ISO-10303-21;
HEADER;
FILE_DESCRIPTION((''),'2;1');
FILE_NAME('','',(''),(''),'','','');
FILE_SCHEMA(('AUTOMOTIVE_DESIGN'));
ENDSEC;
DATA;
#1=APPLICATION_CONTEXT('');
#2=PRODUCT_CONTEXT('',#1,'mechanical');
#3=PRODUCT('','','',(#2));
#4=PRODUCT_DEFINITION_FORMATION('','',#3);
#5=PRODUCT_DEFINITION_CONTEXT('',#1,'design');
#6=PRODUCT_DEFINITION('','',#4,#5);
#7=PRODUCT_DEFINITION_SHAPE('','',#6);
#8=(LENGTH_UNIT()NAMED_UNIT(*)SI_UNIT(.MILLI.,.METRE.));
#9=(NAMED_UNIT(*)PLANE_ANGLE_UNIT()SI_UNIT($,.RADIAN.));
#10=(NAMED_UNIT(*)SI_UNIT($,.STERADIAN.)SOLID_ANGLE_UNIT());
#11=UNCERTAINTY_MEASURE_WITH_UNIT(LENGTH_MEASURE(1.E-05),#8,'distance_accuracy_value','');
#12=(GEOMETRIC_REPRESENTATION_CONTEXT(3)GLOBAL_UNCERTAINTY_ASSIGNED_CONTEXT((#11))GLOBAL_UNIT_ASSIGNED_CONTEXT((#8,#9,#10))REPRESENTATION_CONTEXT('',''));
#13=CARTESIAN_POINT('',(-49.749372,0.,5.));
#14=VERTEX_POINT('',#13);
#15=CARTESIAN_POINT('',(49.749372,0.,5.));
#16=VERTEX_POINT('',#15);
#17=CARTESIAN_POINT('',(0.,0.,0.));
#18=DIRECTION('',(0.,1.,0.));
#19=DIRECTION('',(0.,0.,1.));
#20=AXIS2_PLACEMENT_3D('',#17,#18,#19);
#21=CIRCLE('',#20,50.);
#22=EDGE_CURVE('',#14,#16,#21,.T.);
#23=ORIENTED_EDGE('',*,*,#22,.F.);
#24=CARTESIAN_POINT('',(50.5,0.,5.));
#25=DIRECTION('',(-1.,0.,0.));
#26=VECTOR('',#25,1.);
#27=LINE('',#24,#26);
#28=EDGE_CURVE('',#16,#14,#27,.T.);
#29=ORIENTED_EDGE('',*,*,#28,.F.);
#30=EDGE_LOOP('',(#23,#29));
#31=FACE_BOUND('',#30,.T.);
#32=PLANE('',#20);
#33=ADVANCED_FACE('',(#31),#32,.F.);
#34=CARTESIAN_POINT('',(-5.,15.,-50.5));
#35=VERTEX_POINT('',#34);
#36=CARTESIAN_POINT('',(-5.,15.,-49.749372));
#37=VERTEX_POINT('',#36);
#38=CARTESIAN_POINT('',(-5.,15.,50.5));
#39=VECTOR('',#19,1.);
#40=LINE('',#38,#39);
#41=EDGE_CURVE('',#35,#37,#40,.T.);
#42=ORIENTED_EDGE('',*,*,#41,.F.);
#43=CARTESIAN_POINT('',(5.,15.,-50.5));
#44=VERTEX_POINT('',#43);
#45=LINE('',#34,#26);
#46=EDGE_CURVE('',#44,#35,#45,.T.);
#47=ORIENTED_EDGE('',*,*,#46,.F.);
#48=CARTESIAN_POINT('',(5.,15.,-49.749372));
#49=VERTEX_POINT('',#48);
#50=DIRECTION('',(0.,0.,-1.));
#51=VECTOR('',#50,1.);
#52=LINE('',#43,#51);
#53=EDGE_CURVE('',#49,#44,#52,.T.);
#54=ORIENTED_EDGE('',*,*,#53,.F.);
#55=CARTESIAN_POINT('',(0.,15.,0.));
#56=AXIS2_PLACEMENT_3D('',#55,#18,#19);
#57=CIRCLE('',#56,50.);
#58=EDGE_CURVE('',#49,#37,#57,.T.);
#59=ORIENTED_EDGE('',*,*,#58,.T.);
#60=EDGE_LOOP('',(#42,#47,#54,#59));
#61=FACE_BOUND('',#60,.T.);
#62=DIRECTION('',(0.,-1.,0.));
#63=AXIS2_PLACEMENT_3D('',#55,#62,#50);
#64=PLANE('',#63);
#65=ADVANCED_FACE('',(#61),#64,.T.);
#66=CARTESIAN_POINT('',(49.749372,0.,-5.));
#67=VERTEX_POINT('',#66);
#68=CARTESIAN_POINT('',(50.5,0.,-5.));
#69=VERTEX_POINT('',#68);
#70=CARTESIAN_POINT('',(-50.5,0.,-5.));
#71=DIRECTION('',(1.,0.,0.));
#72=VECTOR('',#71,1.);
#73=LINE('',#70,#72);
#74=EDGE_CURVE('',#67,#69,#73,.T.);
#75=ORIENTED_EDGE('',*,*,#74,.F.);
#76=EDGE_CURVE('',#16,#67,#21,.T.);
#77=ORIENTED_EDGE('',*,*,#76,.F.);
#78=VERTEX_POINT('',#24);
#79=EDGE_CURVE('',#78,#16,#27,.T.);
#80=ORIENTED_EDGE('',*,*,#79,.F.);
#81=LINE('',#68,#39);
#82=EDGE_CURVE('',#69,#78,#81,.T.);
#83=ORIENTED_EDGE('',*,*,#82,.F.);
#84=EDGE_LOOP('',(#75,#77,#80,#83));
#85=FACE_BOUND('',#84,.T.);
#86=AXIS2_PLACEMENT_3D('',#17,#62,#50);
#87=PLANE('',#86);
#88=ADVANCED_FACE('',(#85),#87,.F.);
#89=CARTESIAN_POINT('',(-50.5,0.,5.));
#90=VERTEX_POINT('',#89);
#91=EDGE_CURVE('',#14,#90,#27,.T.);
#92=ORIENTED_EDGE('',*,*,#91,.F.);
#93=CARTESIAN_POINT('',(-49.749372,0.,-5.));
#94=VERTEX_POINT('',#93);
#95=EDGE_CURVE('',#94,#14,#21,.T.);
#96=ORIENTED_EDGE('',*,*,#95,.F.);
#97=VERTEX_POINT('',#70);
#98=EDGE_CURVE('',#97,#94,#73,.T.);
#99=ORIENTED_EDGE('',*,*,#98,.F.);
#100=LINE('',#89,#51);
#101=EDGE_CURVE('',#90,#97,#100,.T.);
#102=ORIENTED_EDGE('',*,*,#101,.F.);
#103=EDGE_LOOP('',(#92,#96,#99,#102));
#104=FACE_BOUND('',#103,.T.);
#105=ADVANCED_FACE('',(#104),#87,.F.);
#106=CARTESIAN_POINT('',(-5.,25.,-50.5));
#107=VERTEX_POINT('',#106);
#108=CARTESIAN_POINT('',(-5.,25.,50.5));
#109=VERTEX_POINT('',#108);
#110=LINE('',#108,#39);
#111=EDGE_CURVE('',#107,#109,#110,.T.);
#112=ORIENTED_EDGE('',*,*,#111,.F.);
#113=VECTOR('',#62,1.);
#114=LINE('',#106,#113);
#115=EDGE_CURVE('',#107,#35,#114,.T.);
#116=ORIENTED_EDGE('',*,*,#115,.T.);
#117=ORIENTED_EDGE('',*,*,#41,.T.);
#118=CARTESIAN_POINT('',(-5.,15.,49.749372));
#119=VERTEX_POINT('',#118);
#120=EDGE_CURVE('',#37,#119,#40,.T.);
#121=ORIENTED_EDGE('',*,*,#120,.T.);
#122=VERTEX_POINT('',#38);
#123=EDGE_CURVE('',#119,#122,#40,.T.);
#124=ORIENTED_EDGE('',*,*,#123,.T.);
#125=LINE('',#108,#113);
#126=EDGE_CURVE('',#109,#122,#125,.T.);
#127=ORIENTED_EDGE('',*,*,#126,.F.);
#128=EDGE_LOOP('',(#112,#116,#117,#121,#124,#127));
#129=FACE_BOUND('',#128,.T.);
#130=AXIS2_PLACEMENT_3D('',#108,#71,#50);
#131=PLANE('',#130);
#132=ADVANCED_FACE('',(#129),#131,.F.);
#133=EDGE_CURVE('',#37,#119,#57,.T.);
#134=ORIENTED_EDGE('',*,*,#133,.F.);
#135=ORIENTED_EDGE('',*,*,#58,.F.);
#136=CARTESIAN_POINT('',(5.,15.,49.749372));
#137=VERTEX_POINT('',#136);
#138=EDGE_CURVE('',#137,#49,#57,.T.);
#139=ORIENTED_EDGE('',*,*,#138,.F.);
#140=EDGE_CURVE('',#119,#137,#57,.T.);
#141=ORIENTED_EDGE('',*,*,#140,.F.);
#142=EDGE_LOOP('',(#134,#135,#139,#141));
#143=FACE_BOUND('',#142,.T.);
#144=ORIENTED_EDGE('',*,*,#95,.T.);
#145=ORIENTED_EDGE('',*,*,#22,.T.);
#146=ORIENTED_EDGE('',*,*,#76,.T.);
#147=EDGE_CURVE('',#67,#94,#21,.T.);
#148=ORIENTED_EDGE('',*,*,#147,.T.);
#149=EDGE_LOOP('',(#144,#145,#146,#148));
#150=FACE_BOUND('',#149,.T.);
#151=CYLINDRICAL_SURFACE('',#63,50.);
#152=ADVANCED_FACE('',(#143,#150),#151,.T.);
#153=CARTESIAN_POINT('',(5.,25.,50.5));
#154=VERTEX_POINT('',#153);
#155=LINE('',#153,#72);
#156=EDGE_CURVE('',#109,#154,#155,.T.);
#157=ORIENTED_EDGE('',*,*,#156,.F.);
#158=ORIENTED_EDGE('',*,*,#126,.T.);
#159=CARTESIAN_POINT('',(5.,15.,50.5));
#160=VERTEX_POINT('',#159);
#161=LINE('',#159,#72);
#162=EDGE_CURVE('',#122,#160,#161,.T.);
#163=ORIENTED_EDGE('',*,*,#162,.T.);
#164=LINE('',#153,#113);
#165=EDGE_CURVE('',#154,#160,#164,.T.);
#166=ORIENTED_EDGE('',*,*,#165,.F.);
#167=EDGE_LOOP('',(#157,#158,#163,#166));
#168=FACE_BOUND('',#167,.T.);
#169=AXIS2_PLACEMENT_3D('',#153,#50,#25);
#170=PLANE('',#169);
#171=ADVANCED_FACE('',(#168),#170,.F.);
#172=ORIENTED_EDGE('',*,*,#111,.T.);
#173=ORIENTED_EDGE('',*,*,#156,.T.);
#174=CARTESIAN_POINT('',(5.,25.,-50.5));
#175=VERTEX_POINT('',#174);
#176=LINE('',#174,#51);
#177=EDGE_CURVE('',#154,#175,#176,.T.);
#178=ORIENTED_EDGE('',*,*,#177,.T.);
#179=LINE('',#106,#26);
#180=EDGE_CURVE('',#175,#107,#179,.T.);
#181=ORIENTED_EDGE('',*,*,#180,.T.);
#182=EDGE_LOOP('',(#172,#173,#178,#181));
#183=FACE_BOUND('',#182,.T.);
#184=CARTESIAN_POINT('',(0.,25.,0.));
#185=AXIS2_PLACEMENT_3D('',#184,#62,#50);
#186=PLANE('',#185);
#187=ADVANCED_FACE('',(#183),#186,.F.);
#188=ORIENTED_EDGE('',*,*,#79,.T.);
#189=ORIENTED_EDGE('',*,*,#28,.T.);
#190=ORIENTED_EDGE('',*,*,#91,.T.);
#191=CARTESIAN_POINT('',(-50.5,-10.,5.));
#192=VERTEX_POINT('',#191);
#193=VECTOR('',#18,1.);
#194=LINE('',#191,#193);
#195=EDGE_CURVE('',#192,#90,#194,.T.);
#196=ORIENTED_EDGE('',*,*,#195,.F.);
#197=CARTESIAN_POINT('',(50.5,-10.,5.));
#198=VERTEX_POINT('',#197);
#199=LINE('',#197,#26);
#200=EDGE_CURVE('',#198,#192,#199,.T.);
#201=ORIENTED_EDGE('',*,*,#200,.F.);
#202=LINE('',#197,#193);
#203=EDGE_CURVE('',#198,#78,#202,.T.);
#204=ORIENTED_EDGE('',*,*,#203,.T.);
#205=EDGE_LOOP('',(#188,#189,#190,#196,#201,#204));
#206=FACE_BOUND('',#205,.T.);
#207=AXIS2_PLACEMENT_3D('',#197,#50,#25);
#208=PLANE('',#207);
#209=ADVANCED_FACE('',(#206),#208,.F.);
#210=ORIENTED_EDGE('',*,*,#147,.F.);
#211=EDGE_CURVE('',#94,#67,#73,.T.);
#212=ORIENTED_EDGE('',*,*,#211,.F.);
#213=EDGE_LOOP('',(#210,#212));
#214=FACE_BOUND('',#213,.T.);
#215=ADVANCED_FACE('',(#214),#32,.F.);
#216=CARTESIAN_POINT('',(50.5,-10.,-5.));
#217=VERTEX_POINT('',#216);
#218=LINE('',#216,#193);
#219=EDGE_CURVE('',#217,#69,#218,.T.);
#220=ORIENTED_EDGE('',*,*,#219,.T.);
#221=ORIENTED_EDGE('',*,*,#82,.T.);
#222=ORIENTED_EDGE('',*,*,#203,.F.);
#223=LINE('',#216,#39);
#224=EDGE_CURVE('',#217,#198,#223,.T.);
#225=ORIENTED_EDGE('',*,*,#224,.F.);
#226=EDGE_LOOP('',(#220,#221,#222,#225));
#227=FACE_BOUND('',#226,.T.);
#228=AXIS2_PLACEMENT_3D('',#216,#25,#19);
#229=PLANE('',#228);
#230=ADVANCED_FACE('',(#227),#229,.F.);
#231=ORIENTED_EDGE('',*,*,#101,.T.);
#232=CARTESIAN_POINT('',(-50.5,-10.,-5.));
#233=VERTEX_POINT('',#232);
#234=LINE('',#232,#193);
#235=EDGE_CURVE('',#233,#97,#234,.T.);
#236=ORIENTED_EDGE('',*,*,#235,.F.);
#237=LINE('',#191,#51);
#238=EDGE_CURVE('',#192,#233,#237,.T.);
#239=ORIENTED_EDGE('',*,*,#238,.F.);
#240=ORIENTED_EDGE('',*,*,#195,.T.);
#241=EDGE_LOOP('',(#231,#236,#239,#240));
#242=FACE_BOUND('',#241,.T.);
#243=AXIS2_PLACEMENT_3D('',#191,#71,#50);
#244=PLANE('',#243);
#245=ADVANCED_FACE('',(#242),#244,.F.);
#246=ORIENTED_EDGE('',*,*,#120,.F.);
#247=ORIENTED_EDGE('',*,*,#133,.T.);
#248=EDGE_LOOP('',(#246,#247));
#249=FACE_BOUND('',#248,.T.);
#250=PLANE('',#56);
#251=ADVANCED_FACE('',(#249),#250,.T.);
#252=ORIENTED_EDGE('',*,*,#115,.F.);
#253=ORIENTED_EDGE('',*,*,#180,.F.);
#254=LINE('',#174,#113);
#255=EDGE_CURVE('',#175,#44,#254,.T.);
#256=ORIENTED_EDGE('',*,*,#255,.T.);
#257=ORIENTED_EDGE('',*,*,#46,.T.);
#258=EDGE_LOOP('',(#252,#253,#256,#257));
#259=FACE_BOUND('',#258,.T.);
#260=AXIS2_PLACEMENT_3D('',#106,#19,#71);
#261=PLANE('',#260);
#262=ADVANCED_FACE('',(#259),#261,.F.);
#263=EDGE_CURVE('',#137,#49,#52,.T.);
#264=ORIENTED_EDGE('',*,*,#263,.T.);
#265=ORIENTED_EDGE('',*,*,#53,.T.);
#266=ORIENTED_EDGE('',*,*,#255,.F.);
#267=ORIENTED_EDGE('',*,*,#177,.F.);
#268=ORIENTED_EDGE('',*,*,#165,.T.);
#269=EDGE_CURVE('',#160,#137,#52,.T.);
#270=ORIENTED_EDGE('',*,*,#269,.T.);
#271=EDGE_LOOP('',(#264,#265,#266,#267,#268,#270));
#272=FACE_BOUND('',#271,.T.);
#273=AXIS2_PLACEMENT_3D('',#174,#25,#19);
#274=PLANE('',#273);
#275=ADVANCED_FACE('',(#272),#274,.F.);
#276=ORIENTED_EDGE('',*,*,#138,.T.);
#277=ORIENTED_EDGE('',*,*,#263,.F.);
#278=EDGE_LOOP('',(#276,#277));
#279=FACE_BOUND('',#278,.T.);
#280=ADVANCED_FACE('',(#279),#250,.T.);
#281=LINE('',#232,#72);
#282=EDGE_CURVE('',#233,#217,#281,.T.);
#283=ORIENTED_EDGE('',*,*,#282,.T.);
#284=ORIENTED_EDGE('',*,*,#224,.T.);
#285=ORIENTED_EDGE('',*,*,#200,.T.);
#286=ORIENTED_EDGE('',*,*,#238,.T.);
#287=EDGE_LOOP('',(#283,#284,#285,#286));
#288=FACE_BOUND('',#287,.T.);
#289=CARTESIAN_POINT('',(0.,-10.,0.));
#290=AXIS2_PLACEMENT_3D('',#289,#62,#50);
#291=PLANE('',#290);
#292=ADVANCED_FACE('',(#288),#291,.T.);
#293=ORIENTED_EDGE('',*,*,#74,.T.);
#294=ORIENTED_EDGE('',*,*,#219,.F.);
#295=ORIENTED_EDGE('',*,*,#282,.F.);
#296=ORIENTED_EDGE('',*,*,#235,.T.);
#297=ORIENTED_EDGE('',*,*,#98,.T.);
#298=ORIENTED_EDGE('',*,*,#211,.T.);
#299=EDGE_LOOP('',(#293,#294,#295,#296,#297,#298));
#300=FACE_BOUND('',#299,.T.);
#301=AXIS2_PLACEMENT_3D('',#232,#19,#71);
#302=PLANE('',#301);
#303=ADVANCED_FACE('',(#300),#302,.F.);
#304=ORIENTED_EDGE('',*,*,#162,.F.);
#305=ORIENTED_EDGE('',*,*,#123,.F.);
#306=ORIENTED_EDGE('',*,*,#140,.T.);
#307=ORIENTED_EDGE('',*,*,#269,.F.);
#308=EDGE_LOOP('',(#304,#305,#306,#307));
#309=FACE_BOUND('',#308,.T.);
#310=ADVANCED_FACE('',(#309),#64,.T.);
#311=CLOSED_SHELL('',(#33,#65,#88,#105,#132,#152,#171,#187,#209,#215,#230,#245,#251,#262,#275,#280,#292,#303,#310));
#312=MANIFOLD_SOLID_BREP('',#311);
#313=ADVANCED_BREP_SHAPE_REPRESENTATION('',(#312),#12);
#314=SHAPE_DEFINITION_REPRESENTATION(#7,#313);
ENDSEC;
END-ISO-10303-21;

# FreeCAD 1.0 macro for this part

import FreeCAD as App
import Part
import Sketcher


def add_polygon(sketch, points):
    """Adds a closed chain of lines whose ends are joined by coincident constraints."""
    first, n = sketch.GeometryCount, len(points)
    for a, b in zip(points, points[1:] + points[:1]):
        sketch.addGeometry(Part.LineSegment(App.Vector(*a, 0), App.Vector(*b, 0)), False)
    for i in range(n):
        sketch.addConstraint(Sketcher.Constraint("Coincident", first + i, 2, first + (i + 1) % n, 1))

doc = App.newDocument("Part")
body = doc.addObject("PartDesign::Body", "Body")

# Sketch on XZ plane
sketch1 = body.newObject("Sketcher::SketchObject", "Sketch")
sketch1.AttachmentSupport = (doc.getObject("XZ_Plane"), [""])
sketch1.MapMode = "FlatFace"
sketch1.addGeometry(Part.Circle(App.Vector(0, 0, 0), App.Vector(0, 0, 1), 50), False)
sketch1.addConstraint([
    Sketcher.Constraint("Coincident", 0, 3, -1, 1),
    Sketcher.Constraint("Diameter", 0, 100.0),
])
pad1 = body.newObject("PartDesign::Pad", "Pad")
pad1.Profile = sketch1
pad1.Length = 15
pad1.Reversed = True

# Sketch on XZ plane
sketch2 = body.newObject("Sketcher::SketchObject", "Sketch001")
sketch2.AttachmentSupport = (doc.getObject("XZ_Plane"), [""])
sketch2.MapMode = "FlatFace"
sketch2.AttachmentOffset = App.Placement(App.Vector(0, 0, -15), App.Rotation())
add_polygon(sketch2, [(-5, -50.5), (-5, 50.5), (5, 50.5), (5, -50.5)])  # lines 0-3
sketch2.addConstraint([
    Sketcher.Constraint("Vertical", 0),
    Sketcher.Constraint("Horizontal", 1),
    Sketcher.Constraint("Vertical", 2),
    Sketcher.Constraint("Horizontal", 3),
    Sketcher.Constraint("Symmetric", 0, 2, 2, 2, -1, 1),
    Sketcher.Constraint("DistanceX", 1, 1, 1, 2, 10.0),
    Sketcher.Constraint("DistanceY", 0, 1, 0, 2, 101.0),
])
pad2 = body.newObject("PartDesign::Pad", "Pad001")
pad2.Profile = sketch2
pad2.Length = 10
pad2.Reversed = True

# Sketch on XZ plane
sketch3 = body.newObject("Sketcher::SketchObject", "Sketch002")
sketch3.AttachmentSupport = (doc.getObject("XZ_Plane"), [""])
sketch3.MapMode = "FlatFace"
add_polygon(sketch3, [(-50.5, 5), (-50.5, -5), (50.5, -5), (50.5, 5)])  # lines 0-3
sketch3.addConstraint([
    Sketcher.Constraint("Vertical", 0),
    Sketcher.Constraint("Horizontal", 1),
    Sketcher.Constraint("Vertical", 2),
    Sketcher.Constraint("Horizontal", 3),
    Sketcher.Constraint("Symmetric", 0, 2, 2, 2, -1, 1),
    Sketcher.Constraint("DistanceX", 1, 1, 1, 2, 101.0),
    Sketcher.Constraint("DistanceY", 0, 2, 0, 1, 10.0),
])
pad3 = body.newObject("PartDesign::Pad", "Pad002")
pad3.Profile = sketch3
pad3.Length = 10

doc.recompute()
